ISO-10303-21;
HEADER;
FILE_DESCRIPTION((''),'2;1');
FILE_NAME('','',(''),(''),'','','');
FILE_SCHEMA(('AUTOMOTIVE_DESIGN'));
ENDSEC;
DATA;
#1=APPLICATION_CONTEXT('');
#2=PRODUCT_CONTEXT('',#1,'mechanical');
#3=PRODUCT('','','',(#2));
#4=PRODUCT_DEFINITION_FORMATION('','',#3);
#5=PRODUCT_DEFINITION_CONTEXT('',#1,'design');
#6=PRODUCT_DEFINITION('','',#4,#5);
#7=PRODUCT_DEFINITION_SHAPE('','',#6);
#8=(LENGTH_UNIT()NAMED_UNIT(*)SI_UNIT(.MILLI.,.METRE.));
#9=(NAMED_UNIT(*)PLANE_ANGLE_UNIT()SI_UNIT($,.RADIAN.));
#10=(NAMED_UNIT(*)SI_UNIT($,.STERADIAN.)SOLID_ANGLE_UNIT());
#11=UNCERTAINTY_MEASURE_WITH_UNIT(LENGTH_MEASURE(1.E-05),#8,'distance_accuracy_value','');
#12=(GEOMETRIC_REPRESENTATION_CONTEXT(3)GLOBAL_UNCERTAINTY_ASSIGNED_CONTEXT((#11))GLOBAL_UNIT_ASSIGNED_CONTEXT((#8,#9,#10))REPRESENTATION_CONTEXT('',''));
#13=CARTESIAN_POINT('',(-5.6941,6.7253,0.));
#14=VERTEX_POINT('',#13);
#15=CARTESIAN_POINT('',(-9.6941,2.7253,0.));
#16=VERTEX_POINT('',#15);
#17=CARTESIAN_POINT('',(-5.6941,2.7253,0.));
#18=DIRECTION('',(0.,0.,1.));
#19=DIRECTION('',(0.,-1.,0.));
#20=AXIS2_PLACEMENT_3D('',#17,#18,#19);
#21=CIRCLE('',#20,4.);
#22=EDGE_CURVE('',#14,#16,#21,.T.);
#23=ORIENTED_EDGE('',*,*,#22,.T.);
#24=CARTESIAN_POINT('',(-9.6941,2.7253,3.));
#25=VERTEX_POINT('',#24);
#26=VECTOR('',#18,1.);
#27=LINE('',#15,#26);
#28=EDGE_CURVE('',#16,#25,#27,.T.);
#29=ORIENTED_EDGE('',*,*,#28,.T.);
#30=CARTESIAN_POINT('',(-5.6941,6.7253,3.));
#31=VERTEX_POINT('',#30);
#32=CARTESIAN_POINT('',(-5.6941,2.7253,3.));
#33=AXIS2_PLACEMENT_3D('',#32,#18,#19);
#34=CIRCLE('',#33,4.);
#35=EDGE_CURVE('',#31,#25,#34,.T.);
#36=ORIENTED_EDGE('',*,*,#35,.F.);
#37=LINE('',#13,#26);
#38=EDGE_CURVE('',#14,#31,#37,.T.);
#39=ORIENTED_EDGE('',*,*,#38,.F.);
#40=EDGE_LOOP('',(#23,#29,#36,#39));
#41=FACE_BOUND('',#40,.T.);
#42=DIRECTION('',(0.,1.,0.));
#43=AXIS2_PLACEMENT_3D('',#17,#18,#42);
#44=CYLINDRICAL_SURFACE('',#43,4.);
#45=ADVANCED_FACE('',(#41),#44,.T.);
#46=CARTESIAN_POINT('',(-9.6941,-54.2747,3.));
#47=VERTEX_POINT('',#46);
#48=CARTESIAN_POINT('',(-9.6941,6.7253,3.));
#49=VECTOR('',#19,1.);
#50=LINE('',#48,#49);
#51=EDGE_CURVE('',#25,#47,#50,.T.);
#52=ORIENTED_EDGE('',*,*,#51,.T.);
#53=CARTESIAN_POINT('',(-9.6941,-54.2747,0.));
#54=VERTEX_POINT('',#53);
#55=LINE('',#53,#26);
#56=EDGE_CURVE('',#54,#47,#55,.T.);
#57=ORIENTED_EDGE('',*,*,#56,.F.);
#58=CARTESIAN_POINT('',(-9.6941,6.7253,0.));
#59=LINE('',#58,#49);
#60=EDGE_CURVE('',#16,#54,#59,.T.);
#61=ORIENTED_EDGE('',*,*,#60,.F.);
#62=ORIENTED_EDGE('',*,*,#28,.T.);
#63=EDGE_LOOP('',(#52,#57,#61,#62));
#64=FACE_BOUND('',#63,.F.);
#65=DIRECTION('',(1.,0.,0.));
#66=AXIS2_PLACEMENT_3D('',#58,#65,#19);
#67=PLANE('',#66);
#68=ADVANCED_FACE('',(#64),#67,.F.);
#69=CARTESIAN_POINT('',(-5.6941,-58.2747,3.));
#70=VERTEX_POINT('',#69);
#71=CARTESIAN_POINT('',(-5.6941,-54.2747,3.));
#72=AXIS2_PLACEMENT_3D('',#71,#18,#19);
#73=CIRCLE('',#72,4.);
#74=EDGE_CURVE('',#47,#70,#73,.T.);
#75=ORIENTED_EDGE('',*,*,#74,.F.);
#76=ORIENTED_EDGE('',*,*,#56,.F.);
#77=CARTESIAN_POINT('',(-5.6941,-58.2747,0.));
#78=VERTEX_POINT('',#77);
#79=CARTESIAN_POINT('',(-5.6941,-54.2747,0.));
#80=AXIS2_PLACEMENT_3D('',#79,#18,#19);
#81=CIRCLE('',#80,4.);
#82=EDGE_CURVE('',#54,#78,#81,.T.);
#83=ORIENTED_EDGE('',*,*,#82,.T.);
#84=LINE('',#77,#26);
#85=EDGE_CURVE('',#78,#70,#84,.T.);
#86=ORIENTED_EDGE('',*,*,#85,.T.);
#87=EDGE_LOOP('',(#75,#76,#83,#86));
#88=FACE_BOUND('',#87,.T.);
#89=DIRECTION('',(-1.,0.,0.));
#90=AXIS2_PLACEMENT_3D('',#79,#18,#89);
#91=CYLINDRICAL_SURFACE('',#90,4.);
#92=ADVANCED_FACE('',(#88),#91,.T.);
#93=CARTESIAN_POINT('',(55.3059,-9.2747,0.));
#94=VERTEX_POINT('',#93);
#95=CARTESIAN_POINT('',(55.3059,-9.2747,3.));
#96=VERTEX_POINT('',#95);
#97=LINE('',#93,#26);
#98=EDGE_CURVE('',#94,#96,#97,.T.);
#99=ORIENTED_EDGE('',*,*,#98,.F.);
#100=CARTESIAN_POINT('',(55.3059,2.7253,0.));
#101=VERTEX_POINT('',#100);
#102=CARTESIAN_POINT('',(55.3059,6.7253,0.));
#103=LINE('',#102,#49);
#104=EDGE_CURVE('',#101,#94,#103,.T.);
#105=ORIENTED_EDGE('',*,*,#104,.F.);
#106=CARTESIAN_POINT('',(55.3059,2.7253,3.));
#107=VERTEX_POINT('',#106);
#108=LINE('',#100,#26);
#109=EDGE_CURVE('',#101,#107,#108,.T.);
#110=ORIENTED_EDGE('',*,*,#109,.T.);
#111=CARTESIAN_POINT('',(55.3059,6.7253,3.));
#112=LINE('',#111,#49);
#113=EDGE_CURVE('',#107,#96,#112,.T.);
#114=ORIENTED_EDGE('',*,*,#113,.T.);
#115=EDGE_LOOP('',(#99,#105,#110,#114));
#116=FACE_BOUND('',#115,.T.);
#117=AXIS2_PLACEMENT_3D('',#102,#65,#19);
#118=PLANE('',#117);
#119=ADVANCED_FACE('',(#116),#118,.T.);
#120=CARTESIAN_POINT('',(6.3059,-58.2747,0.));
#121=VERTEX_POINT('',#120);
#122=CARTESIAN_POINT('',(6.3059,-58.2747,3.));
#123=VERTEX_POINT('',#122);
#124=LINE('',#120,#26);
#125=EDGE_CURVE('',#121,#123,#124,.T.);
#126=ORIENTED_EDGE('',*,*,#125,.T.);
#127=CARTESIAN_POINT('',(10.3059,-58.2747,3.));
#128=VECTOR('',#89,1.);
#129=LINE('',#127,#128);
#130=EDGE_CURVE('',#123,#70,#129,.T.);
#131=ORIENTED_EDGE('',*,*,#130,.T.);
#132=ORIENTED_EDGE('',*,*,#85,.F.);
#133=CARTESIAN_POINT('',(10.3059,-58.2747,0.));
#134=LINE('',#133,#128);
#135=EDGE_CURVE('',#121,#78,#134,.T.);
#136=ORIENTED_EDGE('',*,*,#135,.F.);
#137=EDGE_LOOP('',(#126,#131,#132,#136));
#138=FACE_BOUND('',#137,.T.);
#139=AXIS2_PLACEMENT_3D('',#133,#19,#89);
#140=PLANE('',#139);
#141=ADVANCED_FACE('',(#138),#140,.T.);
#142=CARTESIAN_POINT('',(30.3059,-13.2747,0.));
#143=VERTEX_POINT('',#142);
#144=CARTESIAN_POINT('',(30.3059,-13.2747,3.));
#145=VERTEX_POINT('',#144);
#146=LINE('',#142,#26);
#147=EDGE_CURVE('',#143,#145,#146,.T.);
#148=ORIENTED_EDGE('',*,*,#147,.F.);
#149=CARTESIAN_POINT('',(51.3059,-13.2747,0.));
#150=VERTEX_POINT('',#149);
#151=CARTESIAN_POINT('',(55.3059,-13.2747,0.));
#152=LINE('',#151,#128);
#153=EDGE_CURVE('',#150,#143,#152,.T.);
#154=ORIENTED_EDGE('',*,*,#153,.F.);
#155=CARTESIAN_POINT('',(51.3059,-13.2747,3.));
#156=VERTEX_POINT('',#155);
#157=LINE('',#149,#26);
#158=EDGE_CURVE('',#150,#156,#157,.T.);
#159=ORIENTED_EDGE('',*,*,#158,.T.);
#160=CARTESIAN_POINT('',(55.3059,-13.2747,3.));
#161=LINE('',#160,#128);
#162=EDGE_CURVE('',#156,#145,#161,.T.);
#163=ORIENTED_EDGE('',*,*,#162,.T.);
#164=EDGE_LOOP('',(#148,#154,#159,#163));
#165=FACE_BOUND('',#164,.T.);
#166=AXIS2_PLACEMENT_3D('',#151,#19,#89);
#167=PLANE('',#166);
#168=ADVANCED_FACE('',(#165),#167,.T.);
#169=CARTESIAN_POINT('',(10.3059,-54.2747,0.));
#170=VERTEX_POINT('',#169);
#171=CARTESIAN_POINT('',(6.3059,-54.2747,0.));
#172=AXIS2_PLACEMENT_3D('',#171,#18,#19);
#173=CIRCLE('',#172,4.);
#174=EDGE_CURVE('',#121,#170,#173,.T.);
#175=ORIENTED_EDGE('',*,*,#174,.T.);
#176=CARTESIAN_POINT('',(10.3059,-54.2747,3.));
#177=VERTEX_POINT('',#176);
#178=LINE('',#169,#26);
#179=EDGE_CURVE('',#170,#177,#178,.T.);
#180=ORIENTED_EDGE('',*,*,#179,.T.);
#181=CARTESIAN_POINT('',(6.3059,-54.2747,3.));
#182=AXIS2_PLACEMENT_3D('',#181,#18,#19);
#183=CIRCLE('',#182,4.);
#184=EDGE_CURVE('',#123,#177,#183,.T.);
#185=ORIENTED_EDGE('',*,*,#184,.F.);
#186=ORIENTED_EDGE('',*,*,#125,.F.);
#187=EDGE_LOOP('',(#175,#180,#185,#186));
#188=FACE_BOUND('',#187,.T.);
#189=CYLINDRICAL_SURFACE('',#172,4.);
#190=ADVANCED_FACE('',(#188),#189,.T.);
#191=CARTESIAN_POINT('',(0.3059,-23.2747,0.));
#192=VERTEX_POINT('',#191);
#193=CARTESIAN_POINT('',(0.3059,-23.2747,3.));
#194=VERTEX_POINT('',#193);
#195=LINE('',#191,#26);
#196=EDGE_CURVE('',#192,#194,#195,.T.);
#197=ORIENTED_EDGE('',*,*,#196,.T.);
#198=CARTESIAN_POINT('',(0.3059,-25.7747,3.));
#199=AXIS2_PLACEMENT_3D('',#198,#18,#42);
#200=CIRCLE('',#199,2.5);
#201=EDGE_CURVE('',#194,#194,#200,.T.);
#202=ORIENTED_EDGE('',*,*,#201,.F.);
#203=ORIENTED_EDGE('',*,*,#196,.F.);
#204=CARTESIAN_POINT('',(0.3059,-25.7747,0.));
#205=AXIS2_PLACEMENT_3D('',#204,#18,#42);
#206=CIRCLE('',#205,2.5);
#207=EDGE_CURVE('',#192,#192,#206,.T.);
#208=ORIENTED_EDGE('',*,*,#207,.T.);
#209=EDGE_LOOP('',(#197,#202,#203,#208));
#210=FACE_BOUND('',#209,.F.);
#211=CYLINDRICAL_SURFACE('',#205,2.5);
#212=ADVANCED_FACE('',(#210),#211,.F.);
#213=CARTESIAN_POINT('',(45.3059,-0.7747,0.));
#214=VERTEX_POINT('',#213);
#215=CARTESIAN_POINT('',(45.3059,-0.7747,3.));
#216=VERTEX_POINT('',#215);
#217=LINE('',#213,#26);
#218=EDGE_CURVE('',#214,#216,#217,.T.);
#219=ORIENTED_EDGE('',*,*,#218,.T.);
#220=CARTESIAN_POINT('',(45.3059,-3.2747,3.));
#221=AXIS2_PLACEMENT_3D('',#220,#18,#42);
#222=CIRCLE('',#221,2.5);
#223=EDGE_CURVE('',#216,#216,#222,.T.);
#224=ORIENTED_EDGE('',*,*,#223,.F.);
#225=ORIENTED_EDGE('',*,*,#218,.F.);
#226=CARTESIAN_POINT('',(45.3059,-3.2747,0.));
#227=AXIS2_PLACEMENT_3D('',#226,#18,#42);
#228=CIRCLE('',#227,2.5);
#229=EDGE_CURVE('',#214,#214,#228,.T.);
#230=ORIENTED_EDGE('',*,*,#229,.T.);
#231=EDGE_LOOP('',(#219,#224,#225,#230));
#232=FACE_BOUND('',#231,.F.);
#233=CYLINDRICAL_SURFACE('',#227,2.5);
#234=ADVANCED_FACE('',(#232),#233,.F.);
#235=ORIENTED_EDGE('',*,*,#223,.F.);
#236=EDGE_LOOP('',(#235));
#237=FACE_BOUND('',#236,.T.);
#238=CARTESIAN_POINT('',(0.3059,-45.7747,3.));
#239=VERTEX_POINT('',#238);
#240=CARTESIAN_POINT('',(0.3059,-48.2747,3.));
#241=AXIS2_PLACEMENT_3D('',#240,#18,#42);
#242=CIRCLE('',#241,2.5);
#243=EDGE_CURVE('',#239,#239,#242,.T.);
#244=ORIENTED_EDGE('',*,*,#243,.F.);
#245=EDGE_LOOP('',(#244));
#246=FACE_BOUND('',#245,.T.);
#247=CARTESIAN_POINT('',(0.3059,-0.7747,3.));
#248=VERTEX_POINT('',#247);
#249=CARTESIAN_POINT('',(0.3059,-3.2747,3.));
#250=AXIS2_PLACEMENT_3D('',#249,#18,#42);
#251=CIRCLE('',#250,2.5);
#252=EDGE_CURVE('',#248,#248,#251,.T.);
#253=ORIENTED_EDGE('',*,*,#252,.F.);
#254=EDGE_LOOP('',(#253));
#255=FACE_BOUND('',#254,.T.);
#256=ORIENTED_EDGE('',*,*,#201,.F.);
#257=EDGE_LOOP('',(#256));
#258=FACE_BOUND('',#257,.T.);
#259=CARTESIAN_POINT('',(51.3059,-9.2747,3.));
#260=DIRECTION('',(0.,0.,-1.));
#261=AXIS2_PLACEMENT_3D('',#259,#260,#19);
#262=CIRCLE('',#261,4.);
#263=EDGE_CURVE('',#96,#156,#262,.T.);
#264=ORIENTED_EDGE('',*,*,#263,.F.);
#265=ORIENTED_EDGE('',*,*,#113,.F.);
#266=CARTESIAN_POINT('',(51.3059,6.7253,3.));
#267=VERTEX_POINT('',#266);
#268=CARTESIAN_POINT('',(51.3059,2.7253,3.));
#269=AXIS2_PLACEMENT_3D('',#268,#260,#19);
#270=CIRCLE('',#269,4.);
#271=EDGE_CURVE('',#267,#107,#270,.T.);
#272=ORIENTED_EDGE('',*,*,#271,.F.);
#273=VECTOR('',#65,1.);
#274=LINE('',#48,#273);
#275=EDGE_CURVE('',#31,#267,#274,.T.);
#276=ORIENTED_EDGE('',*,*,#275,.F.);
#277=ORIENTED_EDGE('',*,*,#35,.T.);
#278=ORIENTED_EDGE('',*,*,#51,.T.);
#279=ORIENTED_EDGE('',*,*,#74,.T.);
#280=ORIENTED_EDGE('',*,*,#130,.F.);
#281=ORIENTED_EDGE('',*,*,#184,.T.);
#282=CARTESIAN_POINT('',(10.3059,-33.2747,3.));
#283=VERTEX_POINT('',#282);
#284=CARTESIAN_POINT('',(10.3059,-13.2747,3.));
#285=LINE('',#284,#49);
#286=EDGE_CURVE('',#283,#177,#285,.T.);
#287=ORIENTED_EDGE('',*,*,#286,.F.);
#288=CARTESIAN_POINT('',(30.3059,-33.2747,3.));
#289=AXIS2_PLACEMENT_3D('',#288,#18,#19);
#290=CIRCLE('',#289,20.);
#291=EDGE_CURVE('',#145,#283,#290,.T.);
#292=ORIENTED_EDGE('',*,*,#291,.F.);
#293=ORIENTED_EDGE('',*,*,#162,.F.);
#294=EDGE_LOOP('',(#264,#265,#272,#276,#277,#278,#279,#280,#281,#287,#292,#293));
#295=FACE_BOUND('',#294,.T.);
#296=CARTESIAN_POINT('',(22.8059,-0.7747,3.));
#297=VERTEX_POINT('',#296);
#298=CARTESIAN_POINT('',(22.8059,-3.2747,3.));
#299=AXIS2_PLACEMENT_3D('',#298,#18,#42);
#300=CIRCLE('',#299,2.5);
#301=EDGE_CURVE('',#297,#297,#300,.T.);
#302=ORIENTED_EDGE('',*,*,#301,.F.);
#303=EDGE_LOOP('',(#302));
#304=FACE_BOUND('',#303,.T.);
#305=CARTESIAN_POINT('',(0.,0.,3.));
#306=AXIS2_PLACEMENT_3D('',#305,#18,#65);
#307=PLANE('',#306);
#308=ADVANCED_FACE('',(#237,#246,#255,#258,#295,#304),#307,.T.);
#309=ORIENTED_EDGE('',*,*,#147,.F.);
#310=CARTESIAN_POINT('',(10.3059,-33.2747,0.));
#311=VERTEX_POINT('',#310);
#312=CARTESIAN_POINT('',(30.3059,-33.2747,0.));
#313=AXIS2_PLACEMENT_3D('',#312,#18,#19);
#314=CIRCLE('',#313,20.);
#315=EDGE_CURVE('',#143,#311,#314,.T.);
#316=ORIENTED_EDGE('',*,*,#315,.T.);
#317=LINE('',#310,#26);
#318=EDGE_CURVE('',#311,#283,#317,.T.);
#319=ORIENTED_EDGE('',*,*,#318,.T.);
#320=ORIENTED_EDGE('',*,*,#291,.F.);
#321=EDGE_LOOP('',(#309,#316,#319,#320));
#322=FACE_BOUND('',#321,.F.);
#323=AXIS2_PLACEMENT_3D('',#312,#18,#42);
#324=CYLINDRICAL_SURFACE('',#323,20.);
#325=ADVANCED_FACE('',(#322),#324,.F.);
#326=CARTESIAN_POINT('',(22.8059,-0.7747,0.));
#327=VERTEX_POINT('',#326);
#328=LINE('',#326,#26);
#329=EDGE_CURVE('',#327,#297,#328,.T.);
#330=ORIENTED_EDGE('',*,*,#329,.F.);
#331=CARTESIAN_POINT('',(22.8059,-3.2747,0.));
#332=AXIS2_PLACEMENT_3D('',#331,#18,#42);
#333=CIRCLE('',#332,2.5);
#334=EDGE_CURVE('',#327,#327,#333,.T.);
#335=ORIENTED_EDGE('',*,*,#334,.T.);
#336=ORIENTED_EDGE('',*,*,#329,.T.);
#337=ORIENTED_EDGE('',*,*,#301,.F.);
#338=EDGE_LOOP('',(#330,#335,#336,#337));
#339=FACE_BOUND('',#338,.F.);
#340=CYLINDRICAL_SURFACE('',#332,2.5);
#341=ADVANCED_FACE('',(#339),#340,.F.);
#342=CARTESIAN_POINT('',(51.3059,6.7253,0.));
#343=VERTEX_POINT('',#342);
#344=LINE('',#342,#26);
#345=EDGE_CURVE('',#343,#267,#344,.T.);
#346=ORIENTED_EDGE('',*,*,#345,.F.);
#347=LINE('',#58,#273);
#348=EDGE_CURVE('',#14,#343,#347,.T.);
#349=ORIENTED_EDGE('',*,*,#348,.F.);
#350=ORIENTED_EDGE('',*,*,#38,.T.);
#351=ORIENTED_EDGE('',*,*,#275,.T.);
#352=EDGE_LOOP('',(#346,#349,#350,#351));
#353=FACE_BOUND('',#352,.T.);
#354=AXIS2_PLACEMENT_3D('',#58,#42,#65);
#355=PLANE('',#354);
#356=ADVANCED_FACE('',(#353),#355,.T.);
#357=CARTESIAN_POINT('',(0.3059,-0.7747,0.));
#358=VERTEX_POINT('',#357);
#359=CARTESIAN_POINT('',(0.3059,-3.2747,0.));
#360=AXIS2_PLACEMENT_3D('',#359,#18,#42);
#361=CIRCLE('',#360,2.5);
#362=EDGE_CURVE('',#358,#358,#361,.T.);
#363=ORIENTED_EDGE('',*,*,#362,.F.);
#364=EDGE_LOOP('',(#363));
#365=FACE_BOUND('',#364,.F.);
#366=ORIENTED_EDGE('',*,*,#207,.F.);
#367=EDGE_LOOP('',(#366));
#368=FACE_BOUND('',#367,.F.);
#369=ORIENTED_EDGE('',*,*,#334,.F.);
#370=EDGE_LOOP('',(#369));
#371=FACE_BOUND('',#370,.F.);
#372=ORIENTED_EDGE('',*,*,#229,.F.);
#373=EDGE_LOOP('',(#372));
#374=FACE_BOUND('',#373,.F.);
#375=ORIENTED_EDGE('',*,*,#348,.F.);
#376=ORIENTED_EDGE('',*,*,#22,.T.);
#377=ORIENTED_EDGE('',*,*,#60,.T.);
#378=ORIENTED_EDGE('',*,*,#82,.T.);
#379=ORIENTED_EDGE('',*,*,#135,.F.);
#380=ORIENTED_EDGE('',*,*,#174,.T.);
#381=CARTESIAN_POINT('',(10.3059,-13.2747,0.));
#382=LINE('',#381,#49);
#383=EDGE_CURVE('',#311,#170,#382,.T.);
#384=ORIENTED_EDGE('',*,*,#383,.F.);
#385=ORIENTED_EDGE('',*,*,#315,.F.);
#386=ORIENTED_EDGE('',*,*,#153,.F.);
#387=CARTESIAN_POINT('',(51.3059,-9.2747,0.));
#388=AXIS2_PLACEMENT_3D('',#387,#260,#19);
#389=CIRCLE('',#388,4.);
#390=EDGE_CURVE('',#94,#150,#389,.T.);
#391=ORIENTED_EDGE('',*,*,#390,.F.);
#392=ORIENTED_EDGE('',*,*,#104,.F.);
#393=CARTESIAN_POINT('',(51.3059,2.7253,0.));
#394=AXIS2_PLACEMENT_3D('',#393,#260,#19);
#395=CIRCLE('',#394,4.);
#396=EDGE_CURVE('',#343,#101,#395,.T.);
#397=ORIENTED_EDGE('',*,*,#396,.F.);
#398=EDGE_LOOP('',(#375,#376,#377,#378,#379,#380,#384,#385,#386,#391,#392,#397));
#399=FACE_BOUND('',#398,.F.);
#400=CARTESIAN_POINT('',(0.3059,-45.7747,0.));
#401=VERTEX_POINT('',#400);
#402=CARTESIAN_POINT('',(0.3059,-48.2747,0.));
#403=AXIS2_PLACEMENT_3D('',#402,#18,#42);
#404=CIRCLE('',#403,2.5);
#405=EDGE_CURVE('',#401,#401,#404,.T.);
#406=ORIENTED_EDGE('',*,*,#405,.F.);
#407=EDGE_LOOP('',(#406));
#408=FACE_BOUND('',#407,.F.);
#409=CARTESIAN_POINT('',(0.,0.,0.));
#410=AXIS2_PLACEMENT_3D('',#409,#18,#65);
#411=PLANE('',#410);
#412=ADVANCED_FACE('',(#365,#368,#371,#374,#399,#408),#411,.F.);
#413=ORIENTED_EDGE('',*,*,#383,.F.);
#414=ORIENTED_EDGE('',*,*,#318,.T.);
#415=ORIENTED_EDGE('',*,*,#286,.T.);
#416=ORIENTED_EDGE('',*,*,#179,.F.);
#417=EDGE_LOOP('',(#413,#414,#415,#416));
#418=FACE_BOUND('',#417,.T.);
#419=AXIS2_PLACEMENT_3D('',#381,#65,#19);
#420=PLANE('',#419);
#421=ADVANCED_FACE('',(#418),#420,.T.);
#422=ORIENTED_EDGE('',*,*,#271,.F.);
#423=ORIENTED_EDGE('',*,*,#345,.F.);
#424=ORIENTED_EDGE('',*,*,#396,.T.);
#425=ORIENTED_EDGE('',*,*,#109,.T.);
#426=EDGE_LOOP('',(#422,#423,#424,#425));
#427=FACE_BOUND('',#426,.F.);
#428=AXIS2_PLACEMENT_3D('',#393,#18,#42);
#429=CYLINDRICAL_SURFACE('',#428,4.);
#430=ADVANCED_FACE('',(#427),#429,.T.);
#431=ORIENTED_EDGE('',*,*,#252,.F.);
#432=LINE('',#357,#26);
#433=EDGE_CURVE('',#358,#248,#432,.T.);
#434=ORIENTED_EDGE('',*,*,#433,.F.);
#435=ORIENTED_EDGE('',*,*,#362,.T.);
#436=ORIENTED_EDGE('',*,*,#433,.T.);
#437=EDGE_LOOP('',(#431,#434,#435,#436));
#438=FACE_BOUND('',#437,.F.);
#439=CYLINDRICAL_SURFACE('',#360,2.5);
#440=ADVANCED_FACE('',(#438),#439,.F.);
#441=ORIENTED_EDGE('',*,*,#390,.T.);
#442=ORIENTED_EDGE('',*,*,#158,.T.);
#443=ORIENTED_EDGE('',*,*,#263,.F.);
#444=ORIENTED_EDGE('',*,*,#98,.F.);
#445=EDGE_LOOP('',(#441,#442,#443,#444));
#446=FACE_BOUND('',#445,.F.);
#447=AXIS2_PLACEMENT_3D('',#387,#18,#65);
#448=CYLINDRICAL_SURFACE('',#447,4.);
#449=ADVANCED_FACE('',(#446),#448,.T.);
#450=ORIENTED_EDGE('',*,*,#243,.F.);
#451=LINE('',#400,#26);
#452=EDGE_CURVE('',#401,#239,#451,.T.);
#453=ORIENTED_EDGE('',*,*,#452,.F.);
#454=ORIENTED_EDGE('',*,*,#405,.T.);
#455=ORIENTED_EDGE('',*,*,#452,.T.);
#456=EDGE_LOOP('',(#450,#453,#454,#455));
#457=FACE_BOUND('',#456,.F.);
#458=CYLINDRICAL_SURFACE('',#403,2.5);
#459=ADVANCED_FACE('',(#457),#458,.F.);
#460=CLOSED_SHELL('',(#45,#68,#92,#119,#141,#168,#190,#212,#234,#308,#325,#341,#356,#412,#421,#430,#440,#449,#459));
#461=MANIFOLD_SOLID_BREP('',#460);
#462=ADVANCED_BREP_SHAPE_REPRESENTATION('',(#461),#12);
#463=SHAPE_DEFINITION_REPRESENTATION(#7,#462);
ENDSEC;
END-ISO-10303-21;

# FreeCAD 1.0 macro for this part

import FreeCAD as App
import Part
import Sketcher
Q = App.Units.Quantity


def edges_at(feature, points):
    """Names of the edges that pass closest to the given points."""
    edges = feature.Shape.Edges
    near = lambda p: min(range(len(edges)), key=lambda i: edges[i].distToShape(Part.Vertex(*p))[0])
    return sorted({f"Edge{near(p) + 1}" for p in points})


def add_polygon(sketch, points):
    """Adds a closed chain of lines whose ends are joined by coincident constraints."""
    first, n = sketch.GeometryCount, len(points)
    for a, b in zip(points, points[1:] + points[:1]):
        sketch.addGeometry(Part.LineSegment(App.Vector(*a, 0), App.Vector(*b, 0)), False)
    for i in range(n):
        sketch.addConstraint(Sketcher.Constraint("Coincident", first + i, 2, first + (i + 1) % n, 1))

doc = App.newDocument("Part")
body = doc.addObject("PartDesign::Body", "Body")

# Sketch on XY plane
sketch1 = body.newObject("Sketcher::SketchObject", "Sketch")
sketch1.AttachmentSupport = (doc.getObject("XY_Plane"), [""])
sketch1.MapMode = "FlatFace"
add_polygon(sketch1, [(55, 7), (-10, 7), (-10, -58), (10, -58), (10, -13), (55, -13)])  # lines 0-5
sketch1.addConstraint(Sketcher.Constraint("Horizontal", 0))
sketch1.addConstraint(Sketcher.Constraint("Vertical", 1))
sketch1.addConstraint(Sketcher.Constraint("Horizontal", 2))
sketch1.addConstraint(Sketcher.Constraint("Vertical", 3))
sketch1.addConstraint(Sketcher.Constraint("Horizontal", 4))
sketch1.addConstraint(Sketcher.Constraint("Vertical", 5))
sketch1.addConstraint(Sketcher.Constraint("Equal", 0, 1))
sketch1.addConstraint(Sketcher.Constraint("Equal", 4, 3))
sketch1.addConstraint(Sketcher.Constraint("DistanceX", 0, 2, 0, 1, Q("65 mm")))
sketch1.addConstraint(Sketcher.Constraint("DistanceX", 2, 1, 2, 2, Q("20 mm")))
sketch1.addConstraint(Sketcher.Constraint("DistanceX", 0, 2, -1, 1, Q("9.694 mm")))
sketch1.addConstraint(Sketcher.Constraint("DistanceY", -1, 1, 0, 2, Q("6.7253 mm")))
pad1 = body.newObject("PartDesign::Pad", "Pad")
pad1.Profile = sketch1
pad1.Length = 3

# Sketch on XY plane
sketch2 = body.newObject("Sketcher::SketchObject", "Sketch001")
sketch2.AttachmentSupport = (doc.getObject("XY_Plane"), [""])
sketch2.MapMode = "FlatFace"
sketch2.addGeometry(Part.Circle(App.Vector(0.3, -48.3, 0), App.Vector(0, 0, 1), 2.5), False)
sketch2.addGeometry(Part.Circle(App.Vector(0.3, -25.8, 0), App.Vector(0, 0, 1), 2.5), False)
sketch2.addGeometry(Part.Circle(App.Vector(0.3, -3.3, 0), App.Vector(0, 0, 1), 2.5), False)
sketch2.addGeometry(Part.Circle(App.Vector(45.3, -3.3, 0), App.Vector(0, 0, 1), 2.5), False)
sketch2.addGeometry(Part.Circle(App.Vector(22.8, -3.3, 0), App.Vector(0, 0, 1), 2.5), False)
sketch2.addConstraint(Sketcher.Constraint("Equal", 0, 1))
sketch2.addConstraint(Sketcher.Constraint("Equal", 1, 2))
sketch2.addConstraint(Sketcher.Constraint("Equal", 2, 3))
sketch2.addConstraint(Sketcher.Constraint("Equal", 3, 4))
sketch2.addConstraint(Sketcher.Constraint("Horizontal", 2, 3, 3, 3))
sketch2.addConstraint(Sketcher.Constraint("Horizontal", 3, 3, 4, 3))
sketch2.addConstraint(Sketcher.Constraint("Vertical", 0, 3, 1, 3))
sketch2.addConstraint(Sketcher.Constraint("Vertical", 1, 3, 2, 3))
sketch2.addConstraint(Sketcher.Constraint("Diameter", 0, Q("5 mm")))
sketch2.addConstraint(Sketcher.Constraint("DistanceY", 0, 3, 2, 3, Q("45 mm")))
sketch2.addConstraint(Sketcher.Constraint("DistanceX", 2, 3, 3, 3, Q("45 mm")))
sketch2.addConstraint(Sketcher.Constraint("DistanceY", 0, 3, 1, 3, Q("22.5 mm")))
sketch2.addConstraint(Sketcher.Constraint("DistanceX", 2, 3, 4, 3, Q("22.5 mm")))
sketch2.addConstraint(Sketcher.Constraint("DistanceX", -1, 1, 0, 3, Q("0.306 mm")))
sketch2.addConstraint(Sketcher.Constraint("DistanceY", 0, 3, -1, 1, Q("48.2747 mm")))
doc.recompute()
hole = body.newObject("PartDesign::Hole", "Hole")
hole.Profile = sketch2
hole.ThreadType = "None"
hole.Diameter = 5
hole.DepthType = "ThroughAll"
hole.Reversed = True
doc.recompute()

fillet = body.newObject("PartDesign::Fillet", "Fillet")
fillet.Base = (hole, edges_at(hole, [
    (-9.694, 6.725, 1.5),
    (55.306, 6.725, 1.5),
    (55.306, -13.275, 1.5),
    (10.306, -58.275, 1.5),
    (-9.694, -58.275, 1.5),
]))
fillet.Radius = 4
doc.recompute()

fillet2 = body.newObject("PartDesign::Fillet", "Fillet001")
fillet2.Base = (fillet, edges_at(fillet, [(10.306, -13.275, 1.5)]))
fillet2.Radius = 20

doc.recompute()
